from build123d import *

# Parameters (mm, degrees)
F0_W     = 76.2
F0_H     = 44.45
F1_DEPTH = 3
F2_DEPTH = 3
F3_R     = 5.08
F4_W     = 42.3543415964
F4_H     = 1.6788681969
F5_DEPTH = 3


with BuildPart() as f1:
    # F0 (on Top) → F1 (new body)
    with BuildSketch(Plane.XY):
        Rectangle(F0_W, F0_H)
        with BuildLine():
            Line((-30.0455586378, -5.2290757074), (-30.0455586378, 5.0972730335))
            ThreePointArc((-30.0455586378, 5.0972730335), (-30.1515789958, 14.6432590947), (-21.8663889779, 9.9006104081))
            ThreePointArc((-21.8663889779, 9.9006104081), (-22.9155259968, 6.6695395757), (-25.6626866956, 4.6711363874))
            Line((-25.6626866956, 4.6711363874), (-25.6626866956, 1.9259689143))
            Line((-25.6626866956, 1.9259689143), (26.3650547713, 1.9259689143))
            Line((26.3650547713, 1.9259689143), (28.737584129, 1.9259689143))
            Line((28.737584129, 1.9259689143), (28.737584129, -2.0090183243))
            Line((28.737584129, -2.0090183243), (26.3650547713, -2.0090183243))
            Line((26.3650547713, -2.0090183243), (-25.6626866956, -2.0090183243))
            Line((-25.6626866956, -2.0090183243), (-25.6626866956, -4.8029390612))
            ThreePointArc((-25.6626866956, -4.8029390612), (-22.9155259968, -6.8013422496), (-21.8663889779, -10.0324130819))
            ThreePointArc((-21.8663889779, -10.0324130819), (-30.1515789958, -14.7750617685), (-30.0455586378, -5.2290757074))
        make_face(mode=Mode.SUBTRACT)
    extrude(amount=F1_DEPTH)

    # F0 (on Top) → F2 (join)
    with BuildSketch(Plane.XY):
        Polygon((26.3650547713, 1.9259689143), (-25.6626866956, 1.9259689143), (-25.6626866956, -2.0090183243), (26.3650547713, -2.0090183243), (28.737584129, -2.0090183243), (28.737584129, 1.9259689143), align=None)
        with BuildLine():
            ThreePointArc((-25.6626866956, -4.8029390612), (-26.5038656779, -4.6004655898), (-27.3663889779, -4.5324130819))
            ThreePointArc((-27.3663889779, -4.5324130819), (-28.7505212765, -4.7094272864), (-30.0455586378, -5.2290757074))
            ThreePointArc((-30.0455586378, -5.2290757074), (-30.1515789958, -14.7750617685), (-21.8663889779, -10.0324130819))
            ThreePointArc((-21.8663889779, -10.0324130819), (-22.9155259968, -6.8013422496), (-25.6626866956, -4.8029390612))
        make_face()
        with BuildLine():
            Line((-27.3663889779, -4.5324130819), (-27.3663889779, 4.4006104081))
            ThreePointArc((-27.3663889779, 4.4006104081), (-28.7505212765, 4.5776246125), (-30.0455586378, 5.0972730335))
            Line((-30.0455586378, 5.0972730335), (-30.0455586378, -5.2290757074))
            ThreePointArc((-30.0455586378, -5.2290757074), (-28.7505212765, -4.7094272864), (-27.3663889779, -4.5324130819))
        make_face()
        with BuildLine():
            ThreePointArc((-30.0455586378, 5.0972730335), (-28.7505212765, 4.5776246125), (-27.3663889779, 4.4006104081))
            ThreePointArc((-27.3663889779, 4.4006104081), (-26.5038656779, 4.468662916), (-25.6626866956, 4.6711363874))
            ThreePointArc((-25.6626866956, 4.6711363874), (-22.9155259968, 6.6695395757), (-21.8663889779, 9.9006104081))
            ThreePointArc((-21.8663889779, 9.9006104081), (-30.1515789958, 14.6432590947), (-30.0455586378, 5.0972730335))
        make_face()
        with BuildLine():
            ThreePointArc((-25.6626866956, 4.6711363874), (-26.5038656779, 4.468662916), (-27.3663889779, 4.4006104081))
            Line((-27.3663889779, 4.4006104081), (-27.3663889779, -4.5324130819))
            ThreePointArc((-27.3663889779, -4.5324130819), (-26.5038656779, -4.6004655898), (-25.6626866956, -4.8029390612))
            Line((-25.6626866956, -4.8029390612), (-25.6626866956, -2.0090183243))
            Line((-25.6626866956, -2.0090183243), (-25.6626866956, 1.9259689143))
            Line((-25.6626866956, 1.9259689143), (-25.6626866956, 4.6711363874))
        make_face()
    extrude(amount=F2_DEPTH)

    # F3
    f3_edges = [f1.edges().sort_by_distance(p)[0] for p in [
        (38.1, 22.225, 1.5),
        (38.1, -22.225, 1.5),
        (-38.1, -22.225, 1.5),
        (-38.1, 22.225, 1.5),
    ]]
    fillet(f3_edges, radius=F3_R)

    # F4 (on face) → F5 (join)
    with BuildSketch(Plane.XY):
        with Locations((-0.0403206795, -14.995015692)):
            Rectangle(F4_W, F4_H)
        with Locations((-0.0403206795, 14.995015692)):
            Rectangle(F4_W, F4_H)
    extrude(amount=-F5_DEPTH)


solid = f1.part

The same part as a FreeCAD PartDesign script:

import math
import FreeCAD as App
import Part
import Sketcher

V = App.Vector
Q = App.Units.Quantity


def edges_at(feature, points):
    """Names of the edges that pass closest to the given points."""
    edges = feature.Shape.Edges
    near = lambda p: min(range(len(edges)), key=lambda i: edges[i].distToShape(Part.Vertex(*p))[0])
    return sorted({f"Edge{near(p) + 1}" for p in points})

doc = App.newDocument("Part")
body = doc.addObject("PartDesign::Body", "Body")

sketch1 = doc.addObject("Sketcher::SketchObject", "Sketch")
body.addObject(sketch1)
sketch1.AttachmentSupport = (doc.XY_Plane, [""])
sketch1.MapMode = "FlatFace"
sketch1.addGeometry([
    Part.LineSegment(V(-38.1, 22.2, 0), V(-38.1, -22.2, 0)),
    Part.LineSegment(V(-38.1, -22.2, 0), V(38.1, -22.2, 0)),
    Part.LineSegment(V(38.1, -22.2, 0), V(38.1, 22.2, 0)),
    Part.LineSegment(V(38.1, 22.2, 0), V(-38.1, 22.2, 0)),
    Part.ArcOfCircle(Part.Circle(V(-27.4, -10, 0), V(0, 0, 1), 5.5), math.radians(119), math.radians(432)),
    Part.LineSegment(V(-30, -5.2, 0), V(-30, 5.1, 0)),
    Part.ArcOfCircle(Part.Circle(V(-27.4, 9.9, 0), V(0, 0, 1), 5.5), math.radians(0), math.radians(241)),
    Part.ArcOfCircle(Part.Circle(V(-27.4, 9.9, 0), V(0, 0, 1), 5.5), math.radians(-72), math.radians(0)),
    Part.LineSegment(V(-25.7, 4.7, 0), V(-25.7, 1.9, 0)),
    Part.LineSegment(V(-25.7, 1.9, 0), V(28.7, 1.9, 0)),
    Part.LineSegment(V(28.7, 1.9, 0), V(28.7, -2, 0)),
    Part.LineSegment(V(28.7, -2, 0), V(-25.7, -2, 0)),
    Part.LineSegment(V(-25.7, -2, 0), V(-25.7, -4.8, 0)),
], False)
sketch1.addConstraint([
    Sketcher.Constraint("Coincident", 0, 2, 1, 1),
    Sketcher.Constraint("Coincident", 1, 2, 2, 1),
    Sketcher.Constraint("Coincident", 2, 2, 3, 1),
    Sketcher.Constraint("Coincident", 3, 2, 0, 1),
    Sketcher.Constraint("Coincident", 4, 1, 5, 1),
    Sketcher.Constraint("Coincident", 5, 2, 6, 2),
    Sketcher.Constraint("Tangent", 6, 1, 7, 2),
    Sketcher.Constraint("Coincident", 7, 1, 8, 1),
    Sketcher.Constraint("Coincident", 8, 2, 9, 1),
    Sketcher.Constraint("Coincident", 9, 2, 10, 1),
    Sketcher.Constraint("Coincident", 10, 2, 11, 1),
    Sketcher.Constraint("Coincident", 11, 2, 12, 1),
    Sketcher.Constraint("Coincident", 12, 2, 4, 2),
    Sketcher.Constraint("Vertical", 0),
    Sketcher.Constraint("Horizontal", 1),
    Sketcher.Constraint("Vertical", 2),
    Sketcher.Constraint("Horizontal", 3),
    Sketcher.Constraint("Vertical", 5),
    Sketcher.Constraint("Vertical", 8),
    Sketcher.Constraint("Horizontal", 9),
    Sketcher.Constraint("Vertical", 10),
    Sketcher.Constraint("Horizontal", 11),
    Sketcher.Constraint("Vertical", 12),
    Sketcher.Constraint("Equal", 4, 6),
    Sketcher.Constraint("Equal", 6, 7),
    Sketcher.Constraint("Symmetric", 0, 2, 2, 2, -1, 1),
    Sketcher.Constraint("Horizontal", 7, 3, 6, 1),
    Sketcher.Constraint("Vertical", 4, 3, 6, 3),
    Sketcher.Constraint("Vertical", 8, 2, 11, 2),
    Sketcher.Constraint("DistanceX", 1, 1, 1, 2, Q("3 in")),
    Sketcher.Constraint("DistanceY", 0, 2, 0, 1, Q("1.75 in")),
    Sketcher.Constraint("Radius", 4, 5.5),
    Sketcher.Constraint("DistanceX", 9, 1, 9, 2, 54.400271),
    Sketcher.Constraint("DistanceY", 5, 1, 5, 2, 10.326349),
    Sketcher.Constraint("DistanceY", 12, 2, 12, 1, 2.793921),
    Sketcher.Constraint("DistanceY", 8, 2, 8, 1, 2.745167),
    Sketcher.Constraint("DistanceY", 10, 2, 10, 1, 3.934987),
    Sketcher.Constraint("DistanceX", 4, 3, -1, 1, 27.366389),
    Sketcher.Constraint("DistanceY", -1, 1, 6, 3, 9.90061),
    Sketcher.Constraint("DistanceX", 4, 1, -1, 1, 30.045559),
])
pad1 = doc.addObject("PartDesign::Pad", "Pad")
body.addObject(pad1)
pad1.Profile = sketch1
pad1.Length = 3

sketch2 = doc.addObject("Sketcher::SketchObject", "Sketch001")
body.addObject(sketch2)
sketch2.AttachmentSupport = (doc.XY_Plane, [""])
sketch2.MapMode = "FlatFace"
sketch2.addGeometry([
    Part.LineSegment(V(-25.7, -2, 0), V(28.7, -2, 0)),
    Part.LineSegment(V(28.7, -2, 0), V(28.7, 1.9, 0)),
    Part.LineSegment(V(28.7, 1.9, 0), V(-25.7, 1.9, 0)),
    Part.LineSegment(V(-25.7, 1.9, 0), V(-25.7, 4.7, 0)),
    Part.ArcOfCircle(Part.Circle(V(-27.4, 9.9, 0), V(0, 0, 1), 5.5), math.radians(-72), math.radians(0)),
    Part.ArcOfCircle(Part.Circle(V(-27.4, 9.9, 0), V(0, 0, 1), 5.5), math.radians(0), math.radians(241)),
    Part.LineSegment(V(-30, 5.1, 0), V(-30, -5.2, 0)),
    Part.ArcOfCircle(Part.Circle(V(-27.4, -10, 0), V(0, 0, 1), 5.5), math.radians(119), math.radians(432)),
    Part.LineSegment(V(-25.7, -4.8, 0), V(-25.7, -2, 0)),
], False)
sketch2.addConstraint([
    Sketcher.Constraint("Coincident", 0, 2, 1, 1),
    Sketcher.Constraint("Coincident", 1, 2, 2, 1),
    Sketcher.Constraint("Coincident", 2, 2, 3, 1),
    Sketcher.Constraint("Coincident", 3, 2, 4, 1),
    Sketcher.Constraint("Tangent", 4, 2, 5, 1),
    Sketcher.Constraint("Coincident", 5, 2, 6, 1),
    Sketcher.Constraint("Coincident", 6, 2, 7, 1),
    Sketcher.Constraint("Coincident", 7, 2, 8, 1),
    Sketcher.Constraint("Coincident", 8, 2, 0, 1),
    Sketcher.Constraint("Horizontal", 0),
    Sketcher.Constraint("Vertical", 1),
    Sketcher.Constraint("Horizontal", 2),
    Sketcher.Constraint("Vertical", 3),
    Sketcher.Constraint("Vertical", 6),
    Sketcher.Constraint("Vertical", 8),
    Sketcher.Constraint("Equal", 4, 5),
    Sketcher.Constraint("Equal", 5, 7),
    Sketcher.Constraint("Horizontal", 5, 3, 4, 2),
    Sketcher.Constraint("Vertical", 5, 3, 7, 3),
    Sketcher.Constraint("Vertical", 3, 2, 7, 2),
    Sketcher.Constraint("Radius", 4, 5.5),
    Sketcher.Constraint("DistanceX", 0, 1, 0, 2, 54.400271),
    Sketcher.Constraint("DistanceY", 6, 2, 6, 1, 10.326349),
    Sketcher.Constraint("DistanceY", 8, 1, 8, 2, 2.793921),
    Sketcher.Constraint("DistanceY", 1, 1, 1, 2, 3.934987),
    Sketcher.Constraint("DistanceY", 3, 1, 3, 2, 2.745167),
    Sketcher.Constraint("DistanceX", 4, 3, -1, 1, 27.366389),
    Sketcher.Constraint("DistanceY", -1, 1, 4, 3, 9.90061),
    Sketcher.Constraint("DistanceY", 0, 2, -1, 1, 2.009018),
])
pad2 = doc.addObject("PartDesign::Pad", "Pad001")
body.addObject(pad2)
pad2.Profile = sketch2
pad2.Length = 3
doc.recompute()

fillet = doc.addObject("PartDesign::Fillet", "Fillet")
body.addObject(fillet)
fillet.Base = (pad2, edges_at(pad2, [
    (38.1, 22.225, 1.5),
    (38.1, -22.225, 1.5),
    (-38.1, -22.225, 1.5),
    (-38.1, 22.225, 1.5),
]))
fillet.Radius = Q("0.2 in")

sketch3 = doc.addObject("Sketcher::SketchObject", "Sketch002")
body.addObject(sketch3)
sketch3.AttachmentSupport = (doc.XY_Plane, [""])
sketch3.MapMode = "FlatFace"
sketch3.addGeometry([
    Part.LineSegment(V(-21.2, -14.2, 0), V(-21.2, -15.8, 0)),
    Part.LineSegment(V(-21.2, -15.8, 0), V(21.1, -15.8, 0)),
    Part.LineSegment(V(21.1, -15.8, 0), V(21.1, -14.2, 0)),
    Part.LineSegment(V(21.1, -14.2, 0), V(-21.2, -14.2, 0)),
    Part.LineSegment(V(-21.2, 15.8, 0), V(-21.2, 14.2, 0)),
    Part.LineSegment(V(-21.2, 14.2, 0), V(21.1, 14.2, 0)),
    Part.LineSegment(V(21.1, 14.2, 0), V(21.1, 15.8, 0)),
    Part.LineSegment(V(21.1, 15.8, 0), V(-21.2, 15.8, 0)),
], False)
sketch3.addConstraint([
    Sketcher.Constraint("Coincident", 0, 2, 1, 1),
    Sketcher.Constraint("Coincident", 1, 2, 2, 1),
    Sketcher.Constraint("Coincident", 2, 2, 3, 1),
    Sketcher.Constraint("Coincident", 3, 2, 0, 1),
    Sketcher.Constraint("Coincident", 4, 2, 5, 1),
    Sketcher.Constraint("Coincident", 5, 2, 6, 1),
    Sketcher.Constraint("Coincident", 6, 2, 7, 1),
    Sketcher.Constraint("Coincident", 7, 2, 4, 1),
    Sketcher.Constraint("Vertical", 0),
    Sketcher.Constraint("Horizontal", 1),
    Sketcher.Constraint("Vertical", 2),
    Sketcher.Constraint("Horizontal", 3),
    Sketcher.Constraint("Vertical", 4),
    Sketcher.Constraint("Horizontal", 5),
    Sketcher.Constraint("Vertical", 6),
    Sketcher.Constraint("Horizontal", 7),
    Sketcher.Constraint("Symmetric", 3, 2, 4, 2, -1),
    Sketcher.Constraint("Symmetric", 1, 2, 6, 2, -1),
    Sketcher.Constraint("DistanceX", 1, 1, 1, 2, 42.354342),
    Sketcher.Constraint("DistanceY", 0, 2, 0, 1, 1.678868),
    Sketcher.Constraint("DistanceY", 1, 2, 6, 2, 31.6689),
    Sketcher.Constraint("DistanceX", 0, 2, -1, 1, 21.217491),
])
pad3 = doc.addObject("PartDesign::Pad", "Pad002")
body.addObject(pad3)
pad3.Profile = sketch3
pad3.Length = 3
pad3.Reversed = True

doc.recompute()
